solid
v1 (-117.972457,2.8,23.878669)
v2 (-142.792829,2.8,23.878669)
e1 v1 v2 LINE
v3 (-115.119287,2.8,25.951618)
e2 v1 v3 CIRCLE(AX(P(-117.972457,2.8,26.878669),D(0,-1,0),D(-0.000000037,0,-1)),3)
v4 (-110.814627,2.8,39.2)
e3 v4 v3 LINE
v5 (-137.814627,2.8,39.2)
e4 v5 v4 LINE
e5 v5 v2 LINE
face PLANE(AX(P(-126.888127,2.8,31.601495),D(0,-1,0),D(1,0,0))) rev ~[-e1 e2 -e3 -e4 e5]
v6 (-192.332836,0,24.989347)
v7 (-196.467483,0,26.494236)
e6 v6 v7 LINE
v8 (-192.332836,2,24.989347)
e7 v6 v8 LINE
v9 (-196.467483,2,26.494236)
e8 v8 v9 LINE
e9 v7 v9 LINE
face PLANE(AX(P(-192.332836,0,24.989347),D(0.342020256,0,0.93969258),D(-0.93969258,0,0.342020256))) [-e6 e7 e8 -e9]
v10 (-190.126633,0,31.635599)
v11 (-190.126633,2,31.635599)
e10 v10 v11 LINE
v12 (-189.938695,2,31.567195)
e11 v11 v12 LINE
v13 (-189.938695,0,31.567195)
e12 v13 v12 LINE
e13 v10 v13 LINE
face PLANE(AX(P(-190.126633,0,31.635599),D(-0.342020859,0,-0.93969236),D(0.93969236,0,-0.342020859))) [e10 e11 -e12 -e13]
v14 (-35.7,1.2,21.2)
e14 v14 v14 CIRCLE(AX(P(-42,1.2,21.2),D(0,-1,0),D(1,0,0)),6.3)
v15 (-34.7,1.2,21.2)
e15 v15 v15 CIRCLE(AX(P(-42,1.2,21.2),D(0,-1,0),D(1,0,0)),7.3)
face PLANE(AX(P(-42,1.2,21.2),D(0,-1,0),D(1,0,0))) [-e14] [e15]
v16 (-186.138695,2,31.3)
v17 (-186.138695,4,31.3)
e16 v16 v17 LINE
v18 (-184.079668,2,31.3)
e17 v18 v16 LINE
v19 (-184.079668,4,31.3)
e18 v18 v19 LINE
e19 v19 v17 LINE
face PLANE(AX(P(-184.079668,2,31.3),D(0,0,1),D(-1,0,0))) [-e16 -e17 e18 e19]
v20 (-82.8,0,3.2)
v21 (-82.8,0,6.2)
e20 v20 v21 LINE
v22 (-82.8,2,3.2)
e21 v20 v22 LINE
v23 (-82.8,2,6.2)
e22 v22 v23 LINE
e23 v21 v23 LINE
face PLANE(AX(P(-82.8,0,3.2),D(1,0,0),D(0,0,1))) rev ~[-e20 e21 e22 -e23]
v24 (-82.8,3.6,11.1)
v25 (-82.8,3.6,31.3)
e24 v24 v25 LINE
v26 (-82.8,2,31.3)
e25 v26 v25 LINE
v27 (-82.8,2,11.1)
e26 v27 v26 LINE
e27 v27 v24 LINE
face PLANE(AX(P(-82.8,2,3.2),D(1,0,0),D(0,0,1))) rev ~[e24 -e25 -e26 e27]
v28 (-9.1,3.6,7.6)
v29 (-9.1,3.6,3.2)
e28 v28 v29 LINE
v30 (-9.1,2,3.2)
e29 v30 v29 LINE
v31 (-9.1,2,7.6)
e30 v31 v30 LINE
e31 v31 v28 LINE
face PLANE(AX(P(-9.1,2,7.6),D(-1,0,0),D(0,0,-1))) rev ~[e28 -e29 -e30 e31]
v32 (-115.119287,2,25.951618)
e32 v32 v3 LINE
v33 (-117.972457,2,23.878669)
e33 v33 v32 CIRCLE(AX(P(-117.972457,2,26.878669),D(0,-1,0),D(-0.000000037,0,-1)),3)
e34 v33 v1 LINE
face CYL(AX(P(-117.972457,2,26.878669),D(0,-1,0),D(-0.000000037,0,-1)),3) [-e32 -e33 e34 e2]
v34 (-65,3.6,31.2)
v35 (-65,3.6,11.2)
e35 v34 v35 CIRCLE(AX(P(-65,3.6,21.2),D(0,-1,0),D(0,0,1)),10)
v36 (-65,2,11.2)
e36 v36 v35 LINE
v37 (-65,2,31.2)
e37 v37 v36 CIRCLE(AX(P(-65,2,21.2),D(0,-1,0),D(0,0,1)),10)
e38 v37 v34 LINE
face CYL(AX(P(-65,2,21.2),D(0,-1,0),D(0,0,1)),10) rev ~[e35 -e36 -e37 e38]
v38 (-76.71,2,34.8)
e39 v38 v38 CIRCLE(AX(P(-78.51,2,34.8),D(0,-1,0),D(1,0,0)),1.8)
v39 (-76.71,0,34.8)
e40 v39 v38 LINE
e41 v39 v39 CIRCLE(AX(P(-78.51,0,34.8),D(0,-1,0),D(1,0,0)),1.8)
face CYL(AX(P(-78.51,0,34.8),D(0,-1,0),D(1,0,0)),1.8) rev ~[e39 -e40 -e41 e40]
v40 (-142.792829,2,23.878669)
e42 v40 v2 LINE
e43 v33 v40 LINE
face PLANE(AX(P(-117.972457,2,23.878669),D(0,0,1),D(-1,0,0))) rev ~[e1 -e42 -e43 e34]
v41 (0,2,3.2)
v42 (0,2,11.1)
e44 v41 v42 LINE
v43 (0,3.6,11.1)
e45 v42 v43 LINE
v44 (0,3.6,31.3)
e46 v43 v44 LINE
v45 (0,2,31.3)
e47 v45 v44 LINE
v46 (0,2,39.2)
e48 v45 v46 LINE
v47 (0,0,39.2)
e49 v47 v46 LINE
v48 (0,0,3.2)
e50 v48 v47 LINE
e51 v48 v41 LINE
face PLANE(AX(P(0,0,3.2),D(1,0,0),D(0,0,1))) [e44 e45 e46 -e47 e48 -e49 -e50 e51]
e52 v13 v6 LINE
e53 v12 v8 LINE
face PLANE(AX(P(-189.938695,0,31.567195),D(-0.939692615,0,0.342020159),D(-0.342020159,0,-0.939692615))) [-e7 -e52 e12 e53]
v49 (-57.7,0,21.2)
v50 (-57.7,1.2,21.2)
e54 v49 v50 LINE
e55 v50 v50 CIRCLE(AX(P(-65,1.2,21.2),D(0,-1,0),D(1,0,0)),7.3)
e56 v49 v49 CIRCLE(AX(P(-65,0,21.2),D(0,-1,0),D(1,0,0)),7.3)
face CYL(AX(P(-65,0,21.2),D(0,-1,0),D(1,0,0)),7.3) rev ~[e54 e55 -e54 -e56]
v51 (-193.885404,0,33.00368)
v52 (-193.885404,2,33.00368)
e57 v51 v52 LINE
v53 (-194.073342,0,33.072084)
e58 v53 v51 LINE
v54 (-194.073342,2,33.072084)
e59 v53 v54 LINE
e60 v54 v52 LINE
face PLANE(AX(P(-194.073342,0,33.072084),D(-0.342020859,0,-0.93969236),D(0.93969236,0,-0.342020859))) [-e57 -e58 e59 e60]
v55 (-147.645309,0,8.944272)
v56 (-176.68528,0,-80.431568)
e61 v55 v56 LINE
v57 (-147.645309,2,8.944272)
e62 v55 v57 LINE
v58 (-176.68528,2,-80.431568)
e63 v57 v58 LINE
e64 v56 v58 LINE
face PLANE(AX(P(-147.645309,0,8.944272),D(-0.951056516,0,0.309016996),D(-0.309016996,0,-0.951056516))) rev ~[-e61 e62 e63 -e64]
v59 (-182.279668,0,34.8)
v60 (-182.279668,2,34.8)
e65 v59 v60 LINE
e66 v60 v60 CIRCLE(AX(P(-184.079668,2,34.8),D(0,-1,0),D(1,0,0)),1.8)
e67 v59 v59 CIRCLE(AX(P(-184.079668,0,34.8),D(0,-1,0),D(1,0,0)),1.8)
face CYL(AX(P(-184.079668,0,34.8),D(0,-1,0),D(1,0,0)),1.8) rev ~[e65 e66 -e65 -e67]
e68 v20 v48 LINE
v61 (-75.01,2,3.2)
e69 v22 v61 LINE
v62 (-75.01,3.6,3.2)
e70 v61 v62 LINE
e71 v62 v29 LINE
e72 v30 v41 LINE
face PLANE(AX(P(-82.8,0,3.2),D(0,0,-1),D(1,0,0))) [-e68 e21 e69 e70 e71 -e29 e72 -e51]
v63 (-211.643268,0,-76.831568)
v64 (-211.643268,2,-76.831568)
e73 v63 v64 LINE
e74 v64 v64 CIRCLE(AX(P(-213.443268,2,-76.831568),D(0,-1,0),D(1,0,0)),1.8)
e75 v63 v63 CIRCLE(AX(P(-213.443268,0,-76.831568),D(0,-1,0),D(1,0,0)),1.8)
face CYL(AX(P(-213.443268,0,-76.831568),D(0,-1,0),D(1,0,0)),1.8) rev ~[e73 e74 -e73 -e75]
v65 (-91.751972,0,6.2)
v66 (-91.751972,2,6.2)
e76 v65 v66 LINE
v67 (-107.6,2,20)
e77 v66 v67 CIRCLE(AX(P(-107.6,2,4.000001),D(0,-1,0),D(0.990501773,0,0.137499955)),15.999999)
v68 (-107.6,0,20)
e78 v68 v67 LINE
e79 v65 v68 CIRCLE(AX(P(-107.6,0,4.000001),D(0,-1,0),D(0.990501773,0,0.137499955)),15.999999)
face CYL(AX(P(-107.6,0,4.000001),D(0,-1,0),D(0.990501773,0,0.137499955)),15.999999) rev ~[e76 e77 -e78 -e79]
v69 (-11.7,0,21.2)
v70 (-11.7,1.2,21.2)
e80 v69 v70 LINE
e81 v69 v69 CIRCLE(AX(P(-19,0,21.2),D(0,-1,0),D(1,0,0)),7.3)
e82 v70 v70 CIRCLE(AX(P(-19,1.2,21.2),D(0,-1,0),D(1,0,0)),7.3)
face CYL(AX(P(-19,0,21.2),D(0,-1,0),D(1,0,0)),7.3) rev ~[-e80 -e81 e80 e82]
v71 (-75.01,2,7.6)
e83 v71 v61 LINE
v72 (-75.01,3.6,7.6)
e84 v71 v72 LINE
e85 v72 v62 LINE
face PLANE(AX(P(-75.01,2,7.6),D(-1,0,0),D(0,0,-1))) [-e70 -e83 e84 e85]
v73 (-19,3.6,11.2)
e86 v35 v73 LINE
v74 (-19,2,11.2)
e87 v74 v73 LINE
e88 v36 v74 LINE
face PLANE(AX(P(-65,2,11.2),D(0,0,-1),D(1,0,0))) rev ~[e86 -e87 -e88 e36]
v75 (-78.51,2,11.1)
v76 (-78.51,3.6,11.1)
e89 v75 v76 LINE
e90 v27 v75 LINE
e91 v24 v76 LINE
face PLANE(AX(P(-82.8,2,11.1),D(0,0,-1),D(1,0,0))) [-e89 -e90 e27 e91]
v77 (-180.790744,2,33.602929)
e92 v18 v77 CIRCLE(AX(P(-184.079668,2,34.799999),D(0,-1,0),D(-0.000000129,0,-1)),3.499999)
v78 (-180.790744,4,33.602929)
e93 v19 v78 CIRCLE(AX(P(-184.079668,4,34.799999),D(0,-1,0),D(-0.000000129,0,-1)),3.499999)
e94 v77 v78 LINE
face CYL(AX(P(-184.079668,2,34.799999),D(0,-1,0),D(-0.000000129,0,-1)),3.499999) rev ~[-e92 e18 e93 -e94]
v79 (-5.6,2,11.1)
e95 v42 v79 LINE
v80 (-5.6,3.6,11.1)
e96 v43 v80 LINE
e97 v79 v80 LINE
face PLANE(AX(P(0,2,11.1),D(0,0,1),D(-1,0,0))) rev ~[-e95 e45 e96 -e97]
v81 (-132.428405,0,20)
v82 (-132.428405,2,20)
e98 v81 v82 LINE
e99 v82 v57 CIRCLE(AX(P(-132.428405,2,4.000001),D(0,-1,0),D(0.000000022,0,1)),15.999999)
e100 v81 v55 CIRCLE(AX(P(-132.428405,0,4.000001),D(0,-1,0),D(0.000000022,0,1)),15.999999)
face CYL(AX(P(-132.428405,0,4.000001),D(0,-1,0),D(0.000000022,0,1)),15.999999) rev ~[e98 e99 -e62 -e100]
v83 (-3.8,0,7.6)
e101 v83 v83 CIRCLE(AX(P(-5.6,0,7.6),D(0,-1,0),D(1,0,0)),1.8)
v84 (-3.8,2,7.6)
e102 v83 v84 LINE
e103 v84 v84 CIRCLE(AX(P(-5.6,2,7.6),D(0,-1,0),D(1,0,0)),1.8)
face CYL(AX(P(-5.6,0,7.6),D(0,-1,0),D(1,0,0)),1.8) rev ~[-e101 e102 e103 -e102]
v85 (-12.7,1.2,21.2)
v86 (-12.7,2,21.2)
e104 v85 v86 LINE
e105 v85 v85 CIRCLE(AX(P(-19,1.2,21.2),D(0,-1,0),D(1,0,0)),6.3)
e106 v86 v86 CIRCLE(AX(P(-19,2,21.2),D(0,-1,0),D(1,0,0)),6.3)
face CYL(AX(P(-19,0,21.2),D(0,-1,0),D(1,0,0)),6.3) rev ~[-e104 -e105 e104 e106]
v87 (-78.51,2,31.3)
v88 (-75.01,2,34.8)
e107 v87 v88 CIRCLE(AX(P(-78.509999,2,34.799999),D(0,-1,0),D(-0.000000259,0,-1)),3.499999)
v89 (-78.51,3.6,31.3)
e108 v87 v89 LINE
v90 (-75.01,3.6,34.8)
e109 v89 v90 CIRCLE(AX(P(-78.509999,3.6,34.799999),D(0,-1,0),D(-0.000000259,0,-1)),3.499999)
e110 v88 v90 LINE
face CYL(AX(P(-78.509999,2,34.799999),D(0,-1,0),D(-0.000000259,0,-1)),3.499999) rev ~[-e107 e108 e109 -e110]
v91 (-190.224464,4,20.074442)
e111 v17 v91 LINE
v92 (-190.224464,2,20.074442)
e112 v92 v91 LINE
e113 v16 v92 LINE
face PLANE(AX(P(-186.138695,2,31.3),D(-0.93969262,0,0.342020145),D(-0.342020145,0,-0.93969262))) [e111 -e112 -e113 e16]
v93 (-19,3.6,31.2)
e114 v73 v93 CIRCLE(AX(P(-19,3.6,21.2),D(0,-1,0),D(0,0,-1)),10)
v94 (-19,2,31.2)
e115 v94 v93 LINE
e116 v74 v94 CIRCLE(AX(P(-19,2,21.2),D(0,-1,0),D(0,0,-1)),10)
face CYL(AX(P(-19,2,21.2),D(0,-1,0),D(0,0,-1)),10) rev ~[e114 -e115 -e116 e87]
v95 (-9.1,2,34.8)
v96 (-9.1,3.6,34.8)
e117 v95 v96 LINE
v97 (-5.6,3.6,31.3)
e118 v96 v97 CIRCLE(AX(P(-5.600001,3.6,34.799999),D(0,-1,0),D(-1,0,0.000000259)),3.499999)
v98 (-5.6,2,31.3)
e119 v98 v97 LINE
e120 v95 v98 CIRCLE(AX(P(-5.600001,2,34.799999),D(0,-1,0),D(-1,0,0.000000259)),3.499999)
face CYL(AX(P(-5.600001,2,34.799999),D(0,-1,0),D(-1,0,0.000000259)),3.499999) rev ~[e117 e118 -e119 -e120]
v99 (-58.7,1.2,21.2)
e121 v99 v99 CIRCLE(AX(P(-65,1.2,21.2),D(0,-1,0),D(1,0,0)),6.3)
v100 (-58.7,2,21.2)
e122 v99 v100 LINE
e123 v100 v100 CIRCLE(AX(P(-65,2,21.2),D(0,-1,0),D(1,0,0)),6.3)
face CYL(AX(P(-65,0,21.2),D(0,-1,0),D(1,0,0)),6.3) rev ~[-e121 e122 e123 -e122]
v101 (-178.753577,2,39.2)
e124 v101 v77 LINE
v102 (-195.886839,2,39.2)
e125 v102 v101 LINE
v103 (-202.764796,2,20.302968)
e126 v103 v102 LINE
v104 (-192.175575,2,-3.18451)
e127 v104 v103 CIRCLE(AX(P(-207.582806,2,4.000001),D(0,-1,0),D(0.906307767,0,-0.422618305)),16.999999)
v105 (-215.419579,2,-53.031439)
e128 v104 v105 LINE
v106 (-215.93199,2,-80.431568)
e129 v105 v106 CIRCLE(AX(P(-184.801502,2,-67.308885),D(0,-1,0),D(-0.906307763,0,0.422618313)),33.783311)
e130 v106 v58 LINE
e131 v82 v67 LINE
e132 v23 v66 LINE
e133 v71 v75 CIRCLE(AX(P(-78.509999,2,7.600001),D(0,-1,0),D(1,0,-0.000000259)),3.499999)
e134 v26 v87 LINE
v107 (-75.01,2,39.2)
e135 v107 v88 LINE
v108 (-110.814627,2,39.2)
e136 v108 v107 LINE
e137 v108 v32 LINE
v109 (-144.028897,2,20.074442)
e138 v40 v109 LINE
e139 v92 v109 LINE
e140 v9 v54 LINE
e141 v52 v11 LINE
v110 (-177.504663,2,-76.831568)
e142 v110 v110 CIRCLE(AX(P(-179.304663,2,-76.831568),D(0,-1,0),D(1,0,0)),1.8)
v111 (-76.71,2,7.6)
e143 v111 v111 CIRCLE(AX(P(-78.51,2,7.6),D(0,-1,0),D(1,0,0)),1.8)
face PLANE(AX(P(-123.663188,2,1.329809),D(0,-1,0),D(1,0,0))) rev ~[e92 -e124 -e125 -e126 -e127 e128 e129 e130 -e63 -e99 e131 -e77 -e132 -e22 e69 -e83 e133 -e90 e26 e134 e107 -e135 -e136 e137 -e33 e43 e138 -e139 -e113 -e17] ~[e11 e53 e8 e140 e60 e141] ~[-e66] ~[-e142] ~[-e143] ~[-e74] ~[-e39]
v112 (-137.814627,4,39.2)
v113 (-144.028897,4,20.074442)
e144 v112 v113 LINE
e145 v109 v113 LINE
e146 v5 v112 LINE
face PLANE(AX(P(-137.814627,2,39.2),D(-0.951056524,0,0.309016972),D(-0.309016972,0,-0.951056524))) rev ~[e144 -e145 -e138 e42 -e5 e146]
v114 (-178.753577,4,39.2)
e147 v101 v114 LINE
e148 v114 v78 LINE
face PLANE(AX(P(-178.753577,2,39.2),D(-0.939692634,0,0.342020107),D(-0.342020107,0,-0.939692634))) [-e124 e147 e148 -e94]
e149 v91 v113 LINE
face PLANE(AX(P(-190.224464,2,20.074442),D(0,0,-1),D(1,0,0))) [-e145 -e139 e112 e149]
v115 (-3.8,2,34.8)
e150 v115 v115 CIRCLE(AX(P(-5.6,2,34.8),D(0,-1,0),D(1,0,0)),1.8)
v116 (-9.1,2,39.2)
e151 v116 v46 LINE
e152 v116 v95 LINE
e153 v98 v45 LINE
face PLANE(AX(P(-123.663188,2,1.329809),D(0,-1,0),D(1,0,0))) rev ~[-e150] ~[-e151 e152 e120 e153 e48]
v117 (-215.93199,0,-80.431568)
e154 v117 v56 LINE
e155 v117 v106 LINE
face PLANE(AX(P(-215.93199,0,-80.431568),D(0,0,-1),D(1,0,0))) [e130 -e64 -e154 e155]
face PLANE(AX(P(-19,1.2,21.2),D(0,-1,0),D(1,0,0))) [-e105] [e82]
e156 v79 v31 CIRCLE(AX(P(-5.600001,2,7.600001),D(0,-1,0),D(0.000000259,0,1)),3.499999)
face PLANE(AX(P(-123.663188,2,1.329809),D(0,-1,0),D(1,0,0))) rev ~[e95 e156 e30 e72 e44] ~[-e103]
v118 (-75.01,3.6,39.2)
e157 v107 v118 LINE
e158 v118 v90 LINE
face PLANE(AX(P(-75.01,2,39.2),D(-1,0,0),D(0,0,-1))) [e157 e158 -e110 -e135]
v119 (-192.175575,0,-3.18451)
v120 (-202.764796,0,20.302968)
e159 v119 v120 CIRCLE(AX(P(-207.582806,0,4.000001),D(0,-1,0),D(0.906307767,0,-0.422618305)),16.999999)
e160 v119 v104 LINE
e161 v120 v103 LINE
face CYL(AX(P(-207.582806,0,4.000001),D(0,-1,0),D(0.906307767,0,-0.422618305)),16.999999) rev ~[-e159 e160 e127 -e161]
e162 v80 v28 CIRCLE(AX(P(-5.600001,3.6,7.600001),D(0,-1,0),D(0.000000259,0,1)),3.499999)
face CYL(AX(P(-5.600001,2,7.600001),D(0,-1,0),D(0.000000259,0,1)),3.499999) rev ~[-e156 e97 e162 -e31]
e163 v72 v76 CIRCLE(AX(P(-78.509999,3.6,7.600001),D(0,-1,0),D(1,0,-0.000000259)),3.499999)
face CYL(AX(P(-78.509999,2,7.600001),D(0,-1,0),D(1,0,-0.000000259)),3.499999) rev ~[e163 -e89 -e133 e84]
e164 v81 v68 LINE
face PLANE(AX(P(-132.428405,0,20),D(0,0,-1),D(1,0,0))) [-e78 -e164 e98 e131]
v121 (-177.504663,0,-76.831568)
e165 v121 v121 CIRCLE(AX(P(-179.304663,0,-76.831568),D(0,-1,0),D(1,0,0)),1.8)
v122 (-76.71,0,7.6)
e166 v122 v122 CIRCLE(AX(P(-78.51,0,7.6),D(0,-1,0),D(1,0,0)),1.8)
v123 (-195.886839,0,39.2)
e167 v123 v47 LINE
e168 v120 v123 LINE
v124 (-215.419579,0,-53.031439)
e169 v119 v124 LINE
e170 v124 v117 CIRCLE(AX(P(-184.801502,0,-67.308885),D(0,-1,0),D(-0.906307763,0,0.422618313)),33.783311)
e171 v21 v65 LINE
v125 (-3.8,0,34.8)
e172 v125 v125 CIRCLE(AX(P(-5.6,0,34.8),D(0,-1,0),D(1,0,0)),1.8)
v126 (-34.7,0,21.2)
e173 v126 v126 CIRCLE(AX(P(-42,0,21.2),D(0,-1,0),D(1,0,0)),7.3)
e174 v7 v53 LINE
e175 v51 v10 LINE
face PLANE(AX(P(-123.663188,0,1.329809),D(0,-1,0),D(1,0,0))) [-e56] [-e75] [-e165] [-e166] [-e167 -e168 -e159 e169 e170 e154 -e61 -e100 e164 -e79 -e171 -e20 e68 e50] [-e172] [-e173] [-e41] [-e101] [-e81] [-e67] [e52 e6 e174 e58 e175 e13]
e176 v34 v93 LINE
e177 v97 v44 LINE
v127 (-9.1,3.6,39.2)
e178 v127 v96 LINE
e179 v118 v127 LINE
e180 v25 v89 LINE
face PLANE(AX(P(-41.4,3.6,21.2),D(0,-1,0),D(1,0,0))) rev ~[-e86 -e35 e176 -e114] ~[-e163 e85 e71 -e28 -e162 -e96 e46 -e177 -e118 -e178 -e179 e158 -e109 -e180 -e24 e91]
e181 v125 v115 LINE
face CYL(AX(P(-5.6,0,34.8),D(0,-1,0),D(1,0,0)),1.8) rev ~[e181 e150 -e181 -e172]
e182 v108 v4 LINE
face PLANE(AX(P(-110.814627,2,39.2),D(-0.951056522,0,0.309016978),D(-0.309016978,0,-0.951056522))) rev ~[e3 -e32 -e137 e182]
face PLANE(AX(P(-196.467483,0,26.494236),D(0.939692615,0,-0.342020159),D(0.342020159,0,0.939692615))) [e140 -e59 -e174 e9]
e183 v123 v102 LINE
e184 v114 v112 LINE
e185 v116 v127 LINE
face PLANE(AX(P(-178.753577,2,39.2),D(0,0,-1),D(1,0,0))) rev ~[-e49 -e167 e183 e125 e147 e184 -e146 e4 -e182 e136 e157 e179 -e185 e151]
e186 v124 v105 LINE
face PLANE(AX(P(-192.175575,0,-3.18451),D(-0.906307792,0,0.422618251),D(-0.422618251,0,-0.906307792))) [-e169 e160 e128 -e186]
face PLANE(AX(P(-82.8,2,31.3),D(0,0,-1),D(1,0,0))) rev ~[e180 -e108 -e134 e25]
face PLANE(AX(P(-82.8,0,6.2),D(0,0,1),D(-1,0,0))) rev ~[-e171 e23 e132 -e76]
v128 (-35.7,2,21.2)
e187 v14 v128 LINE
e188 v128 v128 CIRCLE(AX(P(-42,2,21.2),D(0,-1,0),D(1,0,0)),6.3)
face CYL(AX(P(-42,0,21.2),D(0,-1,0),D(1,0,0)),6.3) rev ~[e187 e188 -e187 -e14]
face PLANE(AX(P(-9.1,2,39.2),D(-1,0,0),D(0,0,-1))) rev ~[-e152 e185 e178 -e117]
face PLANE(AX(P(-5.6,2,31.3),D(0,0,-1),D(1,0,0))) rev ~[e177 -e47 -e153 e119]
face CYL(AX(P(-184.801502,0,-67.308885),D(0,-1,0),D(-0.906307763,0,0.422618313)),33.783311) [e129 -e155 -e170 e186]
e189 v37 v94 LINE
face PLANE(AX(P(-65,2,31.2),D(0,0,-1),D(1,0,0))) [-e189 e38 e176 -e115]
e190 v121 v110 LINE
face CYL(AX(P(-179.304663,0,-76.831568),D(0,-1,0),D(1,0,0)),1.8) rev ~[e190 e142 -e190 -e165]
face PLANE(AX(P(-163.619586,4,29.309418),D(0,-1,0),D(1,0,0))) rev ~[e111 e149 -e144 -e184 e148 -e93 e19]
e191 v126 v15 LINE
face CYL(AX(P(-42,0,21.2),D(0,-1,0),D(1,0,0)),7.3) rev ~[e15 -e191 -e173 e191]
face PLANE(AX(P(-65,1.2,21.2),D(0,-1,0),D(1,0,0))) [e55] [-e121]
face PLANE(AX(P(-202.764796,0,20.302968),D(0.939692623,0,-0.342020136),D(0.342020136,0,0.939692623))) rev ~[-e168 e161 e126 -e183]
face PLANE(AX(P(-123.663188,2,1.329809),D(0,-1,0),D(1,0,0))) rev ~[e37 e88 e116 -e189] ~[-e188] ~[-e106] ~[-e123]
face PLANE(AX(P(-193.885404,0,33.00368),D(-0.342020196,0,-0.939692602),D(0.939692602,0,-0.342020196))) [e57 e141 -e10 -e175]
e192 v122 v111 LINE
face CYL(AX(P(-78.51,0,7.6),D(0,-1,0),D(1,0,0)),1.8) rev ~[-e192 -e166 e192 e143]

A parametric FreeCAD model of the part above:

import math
import FreeCAD as App
import Part
import Sketcher
from FreeCAD import Vector
Q = App.Units.Quantity

doc = App.newDocument("Part")
body = doc.addObject("PartDesign::Body", "Body")

sketch1 = body.newObject("Sketcher::SketchObject", "Sketch")
sketch1.AttachmentSupport = (doc.getObject("XZ_Plane"), [""])
sketch1.MapMode = "FlatFace"
sketch1.addGeometry(Part.LineSegment(Vector(-137.8, 39.2, 0), Vector(-142.8, 23.9, 0)), False)
sketch1.addGeometry(Part.LineSegment(Vector(-142.8, 23.9, 0), Vector(-118, 23.9, 0)), False)
sketch1.addGeometry(Part.ArcOfCircle(Part.Circle(Vector(-118, 26.9, 0), Vector(0, 0, 1), 3), math.radians(-90), math.radians(-18)), False)
sketch1.addGeometry(Part.LineSegment(Vector(-115.1, 26, 0), Vector(-110.8, 39.2, 0)), False)
sketch1.addGeometry(Part.LineSegment(Vector(-110.8, 39.2, 0), Vector(-137.8, 39.2, 0)), False)
sketch1.addConstraint(Sketcher.Constraint("Coincident", 0, 2, 1, 1))
sketch1.addConstraint(Sketcher.Constraint("Tangent", 1, 2, 2, 1))
sketch1.addConstraint(Sketcher.Constraint("Tangent", 2, 2, 3, 1))
sketch1.addConstraint(Sketcher.Constraint("Coincident", 3, 2, 4, 1))
sketch1.addConstraint(Sketcher.Constraint("Coincident", 4, 2, 0, 1))
sketch1.addConstraint(Sketcher.Constraint("Horizontal", 1))
sketch1.addConstraint(Sketcher.Constraint("Horizontal", 4))
sketch1.addConstraint(Sketcher.Constraint("Parallel", 0, 3))
sketch1.addConstraint(Sketcher.Constraint("Radius", 2, Q("3 mm")))
sketch1.addConstraint(Sketcher.Constraint("DistanceX", 4, 2, 4, 1, Q("27 mm")))
sketch1.addConstraint(Sketcher.Constraint("Angle", 0, Q("-107.999999 deg")))
sketch1.addConstraint(Sketcher.Constraint("DistanceY", -1, 1, 3, 2, Q("39.2 mm")))
sketch1.addConstraint(Sketcher.Constraint("Distance", 0, Q("16.109801 mm")))
sketch1.addConstraint(Sketcher.Constraint("DistanceX", 0, 2, -1, 1, Q("142.792829 mm")))
pad1 = body.newObject("PartDesign::Pad", "Pad")
pad1.Profile = sketch1
pad1.Length = 0.8
pad1.Reversed = True
body2 = doc.addObject("PartDesign::Body", "Body001")
doc.recompute()

body.Placement = App.Placement(Vector(0, 2, 0), App.Rotation(Vector(0, 0, 1), 0))
boolean = body2.newObject("PartDesign::Boolean", "Boolean")
boolean.Type = "Fuse"
boolean.addObjects([body])
body3 = doc.addObject("PartDesign::Body", "Body002")

sketch2 = body3.newObject("Sketcher::SketchObject", "Sketch001")
sketch2.AttachmentSupport = (doc.getObject("XZ_Plane002"), [""])
sketch2.MapMode = "FlatFace"
sketch2.addGeometry(Part.LineSegment(Vector(-144, 20.1, 0), Vector(-137.8, 39.2, 0)), False)
sketch2.addGeometry(Part.LineSegment(Vector(-137.8, 39.2, 0), Vector(-178.8, 39.2, 0)), False)
sketch2.addGeometry(Part.LineSegment(Vector(-178.8, 39.2, 0), Vector(-180.8, 33.6, 0)), False)
sketch2.addGeometry(Part.ArcOfCircle(Part.Circle(Vector(-184.1, 34.8, 0), Vector(0, 0, 1), 3.5), math.radians(-90), math.radians(-20)), False)
sketch2.addGeometry(Part.LineSegment(Vector(-184.1, 31.3, 0), Vector(-186.1, 31.3, 0)), False)
sketch2.addGeometry(Part.LineSegment(Vector(-186.1, 31.3, 0), Vector(-190.2, 20.1, 0)), False)
sketch2.addGeometry(Part.LineSegment(Vector(-190.2, 20.1, 0), Vector(-144, 20.1, 0)), False)
sketch2.addConstraint(Sketcher.Constraint("Coincident", 0, 2, 1, 1))
sketch2.addConstraint(Sketcher.Constraint("Coincident", 1, 2, 2, 1))
sketch2.addConstraint(Sketcher.Constraint("Tangent", 2, 2, 3, 2))
sketch2.addConstraint(Sketcher.Constraint("Tangent", 3, 1, 4, 1))
sketch2.addConstraint(Sketcher.Constraint("Coincident", 4, 2, 5, 1))
sketch2.addConstraint(Sketcher.Constraint("Coincident", 5, 2, 6, 1))
sketch2.addConstraint(Sketcher.Constraint("Coincident", 6, 2, 0, 1))
sketch2.addConstraint(Sketcher.Constraint("Horizontal", 1))
sketch2.addConstraint(Sketcher.Constraint("Horizontal", 4))
sketch2.addConstraint(Sketcher.Constraint("Horizontal", 6))
sketch2.addConstraint(Sketcher.Constraint("Parallel", 2, 5))
sketch2.addConstraint(Sketcher.Constraint("Radius", 3, Q("3.499999 mm")))
sketch2.addConstraint(Sketcher.Constraint("Angle", 0, Q("72.000001 deg")))
sketch2.addConstraint(Sketcher.Constraint("Angle", 2, Q("-109.999998 deg")))
sketch2.addConstraint(Sketcher.Constraint("DistanceY", -1, 1, 3, 3, Q("34.799999 mm")))
sketch2.addConstraint(Sketcher.Constraint("DistanceY", -1, 1, 0, 2, Q("39.2 mm")))
sketch2.addConstraint(Sketcher.Constraint("Distance", 0, Q("20.109802 mm")))
sketch2.addConstraint(Sketcher.Constraint("DistanceX", 1, 2, 1, 1, Q("40.93895 mm")))
sketch2.addConstraint(Sketcher.Constraint("DistanceX", 4, 2, 4, 1, Q("2.059027 mm")))
sketch2.addConstraint(Sketcher.Constraint("DistanceX", 3, 1, -1, 1, Q("184.079668 mm")))
pad2 = body3.newObject("PartDesign::Pad", "Pad001")
pad2.Profile = sketch2
pad2.Length = 2
pad2.Reversed = True
body4 = doc.addObject("PartDesign::Body", "Body003")
doc.recompute()

body3.Placement = App.Placement(Vector(0, 2, 0), App.Rotation(Vector(0, 0, 1), 0))
boolean2 = body4.newObject("PartDesign::Boolean", "Boolean001")
boolean2.Type = "Fuse"
boolean2.addObjects([body3])
body5 = doc.addObject("PartDesign::Body", "Body004")
body5.AllowCompound = True

sketch3 = body5.newObject("Sketcher::SketchObject", "Sketch002")
sketch3.AttachmentSupport = (doc.getObject("XZ_Plane004"), [""])
sketch3.MapMode = "FlatFace"
sketch3.addGeometry(Part.ArcOfCircle(Part.Circle(Vector(-78.5, 34.8, 0), Vector(0, 0, 1), 3.5), math.radians(-90), math.radians(0)), False)
sketch3.addGeometry(Part.LineSegment(Vector(-75, 34.8, 0), Vector(-75, 39.2, 0)), False)
sketch3.addGeometry(Part.LineSegment(Vector(-75, 39.2, 0), Vector(-82.8, 39.2, 0)), False)
sketch3.addGeometry(Part.LineSegment(Vector(-82.8, 39.2, 0), Vector(-82.8, 31.3, 0)), False)
sketch3.addGeometry(Part.LineSegment(Vector(-82.8, 31.3, 0), Vector(-78.5, 31.3, 0)), False)
sketch3.addGeometry(Part.Circle(Vector(-78.5, 34.8, 0), Vector(0, 0, 1), 1.8), False)
sketch3.addGeometry(Part.ArcOfCircle(Part.Circle(Vector(-5.6, 34.8, 0), Vector(0, 0, 1), 3.5), math.radians(180), math.radians(270)), False)
sketch3.addGeometry(Part.LineSegment(Vector(-5.6, 31.3, 0), Vector(0, 31.3, 0)), False)
sketch3.addGeometry(Part.LineSegment(Vector(0, 31.3, 0), Vector(0, 39.2, 0)), False)
sketch3.addGeometry(Part.LineSegment(Vector(0, 39.2, 0), Vector(-9.1, 39.2, 0)), False)
sketch3.addGeometry(Part.LineSegment(Vector(-9.1, 39.2, 0), Vector(-9.1, 34.8, 0)), False)
sketch3.addGeometry(Part.Circle(Vector(-5.6, 34.8, 0), Vector(0, 0, 1), 1.8), False)
sketch3.addGeometry(Part.ArcOfCircle(Part.Circle(Vector(-78.5, 7.6, 0), Vector(0, 0, 1), 3.5), math.radians(0), math.radians(90)), False)
sketch3.addGeometry(Part.LineSegment(Vector(-78.5, 11.1, 0), Vector(-82.8, 11.1, 0)), False)
sketch3.addGeometry(Part.LineSegment(Vector(-82.8, 11.1, 0), Vector(-82.8, 3.2, 0)), False)
sketch3.addGeometry(Part.LineSegment(Vector(-82.8, 3.2, 0), Vector(-75, 3.2, 0)), False)
sketch3.addGeometry(Part.LineSegment(Vector(-75, 3.2, 0), Vector(-75, 7.6, 0)), False)
sketch3.addGeometry(Part.Circle(Vector(-78.5, 7.6, 0), Vector(0, 0, 1), 1.8), False)
sketch3.addGeometry(Part.ArcOfCircle(Part.Circle(Vector(-5.6, 7.6, 0), Vector(0, 0, 1), 3.5), math.radians(90), math.radians(180)), False)
sketch3.addGeometry(Part.LineSegment(Vector(-9.1, 7.6, 0), Vector(-9.1, 3.2, 0)), False)
sketch3.addGeometry(Part.LineSegment(Vector(-9.1, 3.2, 0), Vector(0, 3.2, 0)), False)
sketch3.addGeometry(Part.LineSegment(Vector(0, 3.2, 0), Vector(0, 11.1, 0)), False)
sketch3.addGeometry(Part.LineSegment(Vector(0, 11.1, 0), Vector(-5.6, 11.1, 0)), False)
sketch3.addGeometry(Part.Circle(Vector(-5.6, 7.6, 0), Vector(0, 0, 1), 1.8), False)
sketch3.addConstraint(Sketcher.Constraint("Tangent", 0, 2, 1, 1))
sketch3.addConstraint(Sketcher.Constraint("Coincident", 1, 2, 2, 1))
sketch3.addConstraint(Sketcher.Constraint("Coincident", 2, 2, 3, 1))
sketch3.addConstraint(Sketcher.Constraint("Coincident", 3, 2, 4, 1))
sketch3.addConstraint(Sketcher.Constraint("Tangent", 4, 2, 0, 1))
sketch3.addConstraint(Sketcher.Constraint("Tangent", 6, 2, 7, 1))
sketch3.addConstraint(Sketcher.Constraint("Coincident", 7, 2, 8, 1))
sketch3.addConstraint(Sketcher.Constraint("Coincident", 8, 2, 9, 1))
sketch3.addConstraint(Sketcher.Constraint("Coincident", 9, 2, 10, 1))
sketch3.addConstraint(Sketcher.Constraint("Tangent", 10, 2, 6, 1))
sketch3.addConstraint(Sketcher.Constraint("Tangent", 12, 2, 13, 1))
sketch3.addConstraint(Sketcher.Constraint("Coincident", 13, 2, 14, 1))
sketch3.addConstraint(Sketcher.Constraint("Coincident", 14, 2, 15, 1))
sketch3.addConstraint(Sketcher.Constraint("Coincident", 15, 2, 16, 1))
sketch3.addConstraint(Sketcher.Constraint("Tangent", 16, 2, 12, 1))
sketch3.addConstraint(Sketcher.Constraint("Tangent", 18, 2, 19, 1))
sketch3.addConstraint(Sketcher.Constraint("Coincident", 19, 2, 20, 1))
sketch3.addConstraint(Sketcher.Constraint("Coincident", 20, 2, 21, 1))
sketch3.addConstraint(Sketcher.Constraint("Coincident", 21, 2, 22, 1))
sketch3.addConstraint(Sketcher.Constraint("Tangent", 22, 2, 18, 1))
sketch3.addConstraint(Sketcher.Constraint("Vertical", 1))
sketch3.addConstraint(Sketcher.Constraint("Horizontal", 2))
sketch3.addConstraint(Sketcher.Constraint("Vertical", 3))
sketch3.addConstraint(Sketcher.Constraint("Horizontal", 4))
sketch3.addConstraint(Sketcher.Constraint("Horizontal", 7))
sketch3.addConstraint(Sketcher.Constraint("Vertical", 8))
sketch3.addConstraint(Sketcher.Constraint("Horizontal", 9))
sketch3.addConstraint(Sketcher.Constraint("Vertical", 10))
sketch3.addConstraint(Sketcher.Constraint("Horizontal", 13))
sketch3.addConstraint(Sketcher.Constraint("Vertical", 14))
sketch3.addConstraint(Sketcher.Constraint("Horizontal", 15))
sketch3.addConstraint(Sketcher.Constraint("Vertical", 16))
sketch3.addConstraint(Sketcher.Constraint("Vertical", 19))
sketch3.addConstraint(Sketcher.Constraint("Horizontal", 20))
sketch3.addConstraint(Sketcher.Constraint("Vertical", 21))
sketch3.addConstraint(Sketcher.Constraint("Horizontal", 22))
sketch3.addConstraint(Sketcher.Constraint("Coincident", 5, 3, 0, 3))
sketch3.addConstraint(Sketcher.Constraint("Coincident", 11, 3, 6, 3))
sketch3.addConstraint(Sketcher.Constraint("Coincident", 17, 3, 12, 3))
sketch3.addConstraint(Sketcher.Constraint("Coincident", 23, 3, 18, 3))
sketch3.addConstraint(Sketcher.Constraint("Equal", 0, 6))
sketch3.addConstraint(Sketcher.Constraint("Equal", 5, 11))
sketch3.addConstraint(Sketcher.Constraint("Equal", 6, 12))
sketch3.addConstraint(Sketcher.Constraint("Equal", 11, 17))
sketch3.addConstraint(Sketcher.Constraint("Equal", 12, 18))
sketch3.addConstraint(Sketcher.Constraint("Equal", 17, 23))
sketch3.addConstraint(Sketcher.Constraint("PointOnObject", 7, 2, -2))
sketch3.addConstraint(Sketcher.Constraint("PointOnObject", 20, 2, -2))
sketch3.addConstraint(Sketcher.Constraint("Horizontal", 5, 3, 6, 3))
sketch3.addConstraint(Sketcher.Constraint("Horizontal", 17, 3, 18, 3))
sketch3.addConstraint(Sketcher.Constraint("Horizontal", 2, 2, 8, 2))
sketch3.addConstraint(Sketcher.Constraint("Horizontal", 15, 2, 19, 2))
sketch3.addConstraint(Sketcher.Constraint("Vertical", 5, 3, 12, 3))
sketch3.addConstraint(Sketcher.Constraint("Vertical", 11, 3, 18, 3))
sketch3.addConstraint(Sketcher.Constraint("Vertical", 3, 2, 13, 2))
sketch3.addConstraint(Sketcher.Constraint("Equal", 8, 14))
sketch3.addConstraint(Sketcher.Constraint("Diameter", 5, Q("3.6 mm")))
sketch3.addConstraint(Sketcher.Constraint("Radius", 0, Q("3.499999 mm")))
sketch3.addConstraint(Sketcher.Constraint("DistanceX", 7, 1, 7, 2, Q("5.6 mm")))
sketch3.addConstraint(Sketcher.Constraint("DistanceY", 1, 1, 1, 2, Q("4.4 mm")))
sketch3.addConstraint(Sketcher.Constraint("DistanceX", 2, 2, 2, 1, Q("7.79 mm")))
sketch3.addConstraint(Sketcher.Constraint("DistanceY", -1, 1, 0, 3, Q("34.799999 mm")))
sketch3.addConstraint(Sketcher.Constraint("DistanceY", -1, 1, 12, 3, Q("7.600001 mm")))
sketch3.addConstraint(Sketcher.Constraint("DistanceX", 2, 2, -1, 1, Q("82.8 mm")))
pad3 = body5.newObject("PartDesign::Pad", "Pad002")
pad3.Profile = sketch3
pad3.Length = 1.6
pad3.Reversed = True
body6 = doc.addObject("PartDesign::Body", "Body005")
body6.AllowCompound = True
doc.recompute()

body5.Placement = App.Placement(Vector(0, 2, 0), App.Rotation(Vector(0, 0, 1), 0))
boolean3 = body6.newObject("PartDesign::Boolean", "Boolean002")
boolean3.Type = "Fuse"
boolean3.addObjects([body5])
body7 = doc.addObject("PartDesign::Body", "Body006")

sketch4 = body7.newObject("Sketcher::SketchObject", "Sketch003")
sketch4.AttachmentSupport = (doc.getObject("XZ_Plane006"), [""])
sketch4.MapMode = "FlatFace"
sketch4.addGeometry(Part.LineSegment(Vector(-82.8, 39.2, 0), Vector(-82.8, 3.2, 0)), False)
sketch4.addGeometry(Part.LineSegment(Vector(-82.8, 3.2, 0), Vector(0, 3.2, 0)), False)
sketch4.addGeometry(Part.LineSegment(Vector(0, 3.2, 0), Vector(0, 39.2, 0)), False)
sketch4.addGeometry(Part.LineSegment(Vector(0, 39.2, 0), Vector(-82.8, 39.2, 0)), False)
sketch4.addGeometry(Part.Circle(Vector(-78.5, 7.6, 0), Vector(0, 0, 1), 1.8), False)
sketch4.addGeometry(Part.Circle(Vector(-5.6, 7.6, 0), Vector(0, 0, 1), 1.8), False)
sketch4.addGeometry(Part.Circle(Vector(-78.5, 34.8, 0), Vector(0, 0, 1), 1.8), False)
sketch4.addGeometry(Part.ArcOfCircle(Part.Circle(Vector(-65, 21.2, 0), Vector(0, 0, 1), 10), math.radians(90), math.radians(270)), False)
sketch4.addGeometry(Part.LineSegment(Vector(-65, 31.2, 0), Vector(-19, 31.2, 0)), False)
sketch4.addGeometry(Part.ArcOfCircle(Part.Circle(Vector(-19, 21.2, 0), Vector(0, 0, 1), 10), math.radians(-90), math.radians(90)), False)
sketch4.addGeometry(Part.LineSegment(Vector(-19, 11.2, 0), Vector(-65, 11.2, 0)), False)
sketch4.addGeometry(Part.Circle(Vector(-5.6, 34.8, 0), Vector(0, 0, 1), 1.8), False)
sketch4.addConstraint(Sketcher.Constraint("Coincident", 0, 2, 1, 1))
sketch4.addConstraint(Sketcher.Constraint("Coincident", 1, 2, 2, 1))
sketch4.addConstraint(Sketcher.Constraint("Coincident", 2, 2, 3, 1))
sketch4.addConstraint(Sketcher.Constraint("Coincident", 3, 2, 0, 1))
sketch4.addConstraint(Sketcher.Constraint("Tangent", 7, 1, 8, 1))
sketch4.addConstraint(Sketcher.Constraint("Tangent", 8, 2, 9, 2))
sketch4.addConstraint(Sketcher.Constraint("Tangent", 9, 1, 10, 1))
sketch4.addConstraint(Sketcher.Constraint("Tangent", 10, 2, 7, 2))
sketch4.addConstraint(Sketcher.Constraint("Vertical", 0))
sketch4.addConstraint(Sketcher.Constraint("Horizontal", 1))
sketch4.addConstraint(Sketcher.Constraint("Vertical", 2))
sketch4.addConstraint(Sketcher.Constraint("Horizontal", 3))
sketch4.addConstraint(Sketcher.Constraint("Horizontal", 8))
sketch4.addConstraint(Sketcher.Constraint("Horizontal", 10))
sketch4.addConstraint(Sketcher.Constraint("Equal", 4, 5))
sketch4.addConstraint(Sketcher.Constraint("Equal", 5, 6))
sketch4.addConstraint(Sketcher.Constraint("Equal", 6, 11))
sketch4.addConstraint(Sketcher.Constraint("PointOnObject", 1, 2, -2))
sketch4.addConstraint(Sketcher.Constraint("Horizontal", 4, 3, 5, 3))
sketch4.addConstraint(Sketcher.Constraint("Horizontal", 6, 3, 11, 3))
sketch4.addConstraint(Sketcher.Constraint("Vertical", 4, 3, 6, 3))
sketch4.addConstraint(Sketcher.Constraint("Vertical", 5, 3, 11, 3))
sketch4.addConstraint(Sketcher.Constraint("Radius", 7, Q("10 mm")))
sketch4.addConstraint(Sketcher.Constraint("Diameter", 4, Q("3.6 mm")))
sketch4.addConstraint(Sketcher.Constraint("DistanceX", 8, 1, 8, 2, Q("46 mm")))
sketch4.addConstraint(Sketcher.Constraint("DistanceY", 0, 2, 0, 1, Q("36 mm")))
sketch4.addConstraint(Sketcher.Constraint("DistanceX", 1, 1, 1, 2, Q("82.8 mm")))
sketch4.addConstraint(Sketcher.Constraint("DistanceX", 7, 3, -1, 1, Q("65 mm")))
sketch4.addConstraint(Sketcher.Constraint("DistanceY", 0, 2, 7, 3, Q("18 mm")))
sketch4.addConstraint(Sketcher.Constraint("DistanceY", -1, 1, 4, 3, Q("7.6 mm")))
sketch4.addConstraint(Sketcher.Constraint("DistanceX", 5, 3, -1, 1, Q("5.6 mm")))
sketch4.addConstraint(Sketcher.Constraint("DistanceY", -1, 1, 6, 3, Q("34.8 mm")))
sketch4.addConstraint(Sketcher.Constraint("DistanceY", -1, 1, 7, 3, Q("21.2 mm")))
sketch4.addConstraint(Sketcher.Constraint("DistanceX", 4, 3, -1, 1, Q("78.51 mm")))
pad4 = body7.newObject("PartDesign::Pad", "Pad003")
pad4.Profile = sketch4
pad4.Length = 1.6
pad4.Reversed = True
body8 = doc.addObject("PartDesign::Body", "Body007")
doc.recompute()

body7.Placement = App.Placement(Vector(0, 2, 0), App.Rotation(Vector(0, 0, 1), 0))
boolean4 = body8.newObject("PartDesign::Boolean", "Boolean003")
boolean4.Type = "Fuse"
boolean4.addObjects([body7])
doc.recompute()

boolean5 = body8.newObject("PartDesign::Boolean", "Boolean004")
boolean5.Type = "Cut"
boolean5.addObjects([body6])
body9 = doc.addObject("PartDesign::Body", "Body008")
body9.AllowCompound = True

sketch5 = body9.newObject("Sketcher::SketchObject", "Sketch004")
sketch5.AttachmentSupport = (doc.getObject("XZ_Plane008"), [""])
sketch5.MapMode = "FlatFace"
sketch5.addGeometry(Part.Circle(Vector(-65, 21, 0), Vector(0, 0, 1), 7), False)
sketch5.addGeometry(Part.Circle(Vector(-42, 21, 0), Vector(0, 0, 1), 7), False)
sketch5.addGeometry(Part.Circle(Vector(-19, 21, 0), Vector(0, 0, 1), 7), False)
sketch5.addConstraint(Sketcher.Constraint("Equal", 0, 1))
sketch5.addConstraint(Sketcher.Constraint("Equal", 1, 2))
sketch5.addConstraint(Sketcher.Constraint("Horizontal", 0, 3, 1, 3))
sketch5.addConstraint(Sketcher.Constraint("Horizontal", 1, 3, 2, 3))
sketch5.addConstraint(Sketcher.Constraint("Diameter", 0, Q("14.6 mm")))
sketch5.addConstraint(Sketcher.Constraint("DistanceX", 0, 3, -1, 1, Q("65 mm")))
sketch5.addConstraint(Sketcher.Constraint("DistanceX", 1, 3, -1, 1, Q("42 mm")))
sketch5.addConstraint(Sketcher.Constraint("DistanceX", 2, 3, -1, 1, Q("19 mm")))
sketch5.addConstraint(Sketcher.Constraint("DistanceY", -1, 1, 0, 3, Q("21.2 mm")))
pad5 = body9.newObject("PartDesign::Pad", "Pad004")
pad5.Profile = sketch5
pad5.Length = 1.2
pad5.Reversed = True
body10 = doc.addObject("PartDesign::Body", "Body009")

sketch6 = body10.newObject("Sketcher::SketchObject", "Sketch005")
sketch6.AttachmentSupport = (doc.getObject("XZ_Plane009"), [""])
sketch6.MapMode = "FlatFace"
sketch6.addGeometry(Part.LineSegment(Vector(-82.8, 3.2, 0), Vector(0, 3.2, 0)), False)
sketch6.addGeometry(Part.LineSegment(Vector(0, 3.2, 0), Vector(0, 39.2, 0)), False)
sketch6.addGeometry(Part.LineSegment(Vector(0, 39.2, 0), Vector(-195.89, 39.2, 0)), False)
sketch6.addGeometry(Part.LineSegment(Vector(-195.89, 39.2, 0), Vector(-202.76, 20.3, 0)), False)
sketch6.addGeometry(Part.ArcOfCircle(Part.Circle(Vector(-207.58, 4, 0), Vector(0, 0, 1), 17), math.radians(-25), math.radians(74)), False)
sketch6.addGeometry(Part.LineSegment(Vector(-192.18, -3.18, 0), Vector(-215.42, -53.03, 0)), False)
sketch6.addGeometry(Part.ArcOfCircle(Part.Circle(Vector(-184.8, -67.31, 0), Vector(0, 0, 1), 33.78), math.radians(155), math.radians(203)), False)
sketch6.addGeometry(Part.LineSegment(Vector(-215.93, -80.43, 0), Vector(-176.69, -80.43, 0)), False)
sketch6.addGeometry(Part.LineSegment(Vector(-176.69, -80.43, 0), Vector(-147.65, 8.94, 0)), False)
sketch6.addGeometry(Part.ArcOfCircle(Part.Circle(Vector(-132.43, 4, 0), Vector(0, 0, 1), 16), math.radians(90), math.radians(162)), False)
sketch6.addGeometry(Part.LineSegment(Vector(-132.43, 20, 0), Vector(-107.6, 20, 0)), False)
sketch6.addGeometry(Part.ArcOfCircle(Part.Circle(Vector(-107.6, 4, 0), Vector(0, 0, 1), 16), math.radians(8), math.radians(90)), False)
sketch6.addGeometry(Part.LineSegment(Vector(-91.75, 6.2, 0), Vector(-82.8, 6.2, 0)), False)
sketch6.addGeometry(Part.LineSegment(Vector(-82.8, 6.2, 0), Vector(-82.8, 3.2, 0)), False)
sketch6.addGeometry(Part.Circle(Vector(-213.44, -76.83, 0), Vector(0, 0, 1), 1.8), False)
sketch6.addGeometry(Part.Circle(Vector(-179.3, -76.83, 0), Vector(0, 0, 1), 1.8), False)
sketch6.addGeometry(Part.LineSegment(Vector(-190.13, 31.64, 0), Vector(-189.94, 31.57, 0)), False)
sketch6.addGeometry(Part.LineSegment(Vector(-189.94, 31.57, 0), Vector(-192.33, 24.99, 0)), False)
sketch6.addGeometry(Part.LineSegment(Vector(-192.33, 24.99, 0), Vector(-196.47, 26.49, 0)), False)
sketch6.addGeometry(Part.LineSegment(Vector(-196.47, 26.49, 0), Vector(-194.07, 33.07, 0)), False)
sketch6.addGeometry(Part.LineSegment(Vector(-194.07, 33.07, 0), Vector(-193.89, 33, 0)), False)
sketch6.addGeometry(Part.LineSegment(Vector(-193.89, 33, 0), Vector(-190.13, 31.64, 0)), False)
sketch6.addGeometry(Part.Circle(Vector(-184.08, 34.8, 0), Vector(0, 0, 1), 1.8), False)
sketch6.addGeometry(Part.Circle(Vector(-78.51, 7.6, 0), Vector(0, 0, 1), 1.8), False)
sketch6.addGeometry(Part.Circle(Vector(-5.6, 7.6, 0), Vector(0, 0, 1), 1.8), False)
sketch6.addGeometry(Part.Circle(Vector(-65, 21.2, 0), Vector(0, 0, 1), 6.3), False)
sketch6.addGeometry(Part.Circle(Vector(-78.51, 34.8, 0), Vector(0, 0, 1), 1.8), False)
sketch6.addGeometry(Part.Circle(Vector(-42, 21.2, 0), Vector(0, 0, 1), 6.3), False)
sketch6.addGeometry(Part.Circle(Vector(-19, 21.2, 0), Vector(0, 0, 1), 6.3), False)
sketch6.addGeometry(Part.Circle(Vector(-5.6, 34.8, 0), Vector(0, 0, 1), 1.8), False)
sketch6.addConstraint(Sketcher.Constraint("Coincident", 0, 2, 1, 1))
sketch6.addConstraint(Sketcher.Constraint("Coincident", 1, 2, 2, 1))
sketch6.addConstraint(Sketcher.Constraint("Coincident", 2, 2, 3, 1))
sketch6.addConstraint(Sketcher.Constraint("Coincident", 3, 2, 4, 2))
sketch6.addConstraint(Sketcher.Constraint("Tangent", 4, 1, 5, 1))
sketch6.addConstraint(Sketcher.Constraint("Tangent", 5, 2, 6, 1))
sketch6.addConstraint(Sketcher.Constraint("Coincident", 6, 2, 7, 1))
sketch6.addConstraint(Sketcher.Constraint("Coincident", 7, 2, 8, 1))
sketch6.addConstraint(Sketcher.Constraint("Tangent", 8, 2, 9, 2))
sketch6.addConstraint(Sketcher.Constraint("Tangent", 9, 1, 10, 1))
sketch6.addConstraint(Sketcher.Constraint("Tangent", 10, 2, 11, 2))
sketch6.addConstraint(Sketcher.Constraint("Coincident", 11, 1, 12, 1))
sketch6.addConstraint(Sketcher.Constraint("Coincident", 12, 2, 13, 1))
sketch6.addConstraint(Sketcher.Constraint("Coincident", 13, 2, 0, 1))
sketch6.addConstraint(Sketcher.Constraint("Coincident", 16, 2, 17, 1))
sketch6.addConstraint(Sketcher.Constraint("Coincident", 17, 2, 18, 1))
sketch6.addConstraint(Sketcher.Constraint("Coincident", 18, 2, 19, 1))
sketch6.addConstraint(Sketcher.Constraint("Coincident", 19, 2, 20, 1))
sketch6.addConstraint(Sketcher.Constraint("Coincident", 20, 2, 21, 1))
sketch6.addConstraint(Sketcher.Constraint("Coincident", 21, 2, 16, 1))
sketch6.addConstraint(Sketcher.Constraint("Horizontal", 0))
sketch6.addConstraint(Sketcher.Constraint("Vertical", 1))
sketch6.addConstraint(Sketcher.Constraint("Horizontal", 2))
sketch6.addConstraint(Sketcher.Constraint("Horizontal", 7))
sketch6.addConstraint(Sketcher.Constraint("Horizontal", 10))
sketch6.addConstraint(Sketcher.Constraint("Horizontal", 12))
sketch6.addConstraint(Sketcher.Constraint("Vertical", 13))
sketch6.addConstraint(Sketcher.Constraint("Equal", 9, 11))
sketch6.addConstraint(Sketcher.Constraint("Equal", 14, 15))
sketch6.addConstraint(Sketcher.Constraint("Equal", 15, 22))
sketch6.addConstraint(Sketcher.Constraint("Equal", 22, 23))
sketch6.addConstraint(Sketcher.Constraint("Equal", 23, 24))
sketch6.addConstraint(Sketcher.Constraint("Equal", 24, 26))
sketch6.addConstraint(Sketcher.Constraint("Equal", 25, 27))
sketch6.addConstraint(Sketcher.Constraint("Equal", 27, 28))
sketch6.addConstraint(Sketcher.Constraint("Equal", 26, 29))
sketch6.addConstraint(Sketcher.Constraint("PointOnObject", 0, 2, -2))
sketch6.addConstraint(Sketcher.Constraint("Perpendicular", 3, 16))
sketch6.addConstraint(Sketcher.Constraint("Perpendicular", 16, 17))
sketch6.addConstraint(Sketcher.Constraint("Perpendicular", 17, 18))
sketch6.addConstraint(Sketcher.Constraint("Perpendicular", 18, 19))
sketch6.addConstraint(Sketcher.Constraint("Perpendicular", 19, 20))
sketch6.addConstraint(Sketcher.Constraint("Parallel", 20, 21))
sketch6.addConstraint(Sketcher.Constraint("Horizontal", 4, 3, 9, 3))
sketch6.addConstraint(Sketcher.Constraint("Horizontal", 14, 3, 15, 3))
sketch6.addConstraint(Sketcher.Constraint("Horizontal", 23, 3, 24, 3))
sketch6.addConstraint(Sketcher.Constraint("Horizontal", 22, 3, 26, 3))
sketch6.addConstraint(Sketcher.Constraint("Horizontal", 25, 3, 27, 3))
sketch6.addConstraint(Sketcher.Constraint("Horizontal", 27, 3, 28, 3))
sketch6.addConstraint(Sketcher.Constraint("Horizontal", 26, 3, 29, 3))
sketch6.addConstraint(Sketcher.Constraint("Vertical", 23, 3, 26, 3))
sketch6.addConstraint(Sketcher.Constraint("Vertical", 24, 3, 29, 3))
sketch6.addConstraint(Sketcher.Constraint("Equal", 16, 20))
sketch6.addConstraint(Sketcher.Constraint("Radius", 4, Q("16.999999 mm")))
sketch6.addConstraint(Sketcher.Constraint("Radius", 9, Q("15.999999 mm")))
sketch6.addConstraint(Sketcher.Constraint("Diameter", 14, Q("3.6 mm")))
sketch6.addConstraint(Sketcher.Constraint("Diameter", 25, Q("12.6 mm")))
sketch6.addConstraint(Sketcher.Constraint("DistanceY", 1, 1, 1, 2, Q("36 mm")))
sketch6.addConstraint(Sketcher.Constraint("DistanceY", 13, 2, 13, 1, Q("3 mm")))
sketch6.addConstraint(Sketcher.Constraint("Angle", 3, Q("-110 deg")))
sketch6.addConstraint(Sketcher.Constraint("Angle", 5, Q("-114.999999 deg")))
sketch6.addConstraint(Sketcher.Constraint("Angle", 8, Q("72 deg")))
sketch6.addConstraint(Sketcher.Constraint("Distance", 5, Q("55 mm")))
sketch6.addConstraint(Sketcher.Constraint("Distance", 17, Q("7 mm")))
sketch6.addConstraint(Sketcher.Constraint("Distance", 21, Q("4.000001 mm")))
sketch6.addConstraint(Sketcher.Constraint("DistanceX", 0, 1, 0, 2, Q("82.8 mm")))
sketch6.addConstraint(Sketcher.Constraint("DistanceY", -1, 1, 4, 3, Q("4.000001 mm")))
sketch6.addConstraint(Sketcher.Constraint("DistanceX", 25, 3, -1, 1, Q("65 mm")))
sketch6.addConstraint(Sketcher.Constraint("DistanceX", 27, 3, -1, 1, Q("42 mm")))
sketch6.addConstraint(Sketcher.Constraint("DistanceX", 28, 3, -1, 1, Q("19 mm")))
sketch6.addConstraint(Sketcher.Constraint("DistanceX", 11, 3, 24, 3, Q("102 mm")))
sketch6.addConstraint(Sketcher.Constraint("DistanceY", 0, 2, 28, 3, Q("18 mm")))
sketch6.addConstraint(Sketcher.Constraint("Distance", 16, Q("0.199999 mm")))
sketch6.addConstraint(Sketcher.Constraint("DistanceX", 11, 3, -1, 1, Q("107.6 mm")))
sketch6.addConstraint(Sketcher.Constraint("DistanceY", -1, 1, 22, 3, Q("34.8 mm")))
sketch6.addConstraint(Sketcher.Constraint("DistanceY", -1, 1, 23, 3, Q("7.6 mm")))
sketch6.addConstraint(Sketcher.Constraint("DistanceY", -1, 1, 25, 3, Q("21.2 mm")))
sketch6.addConstraint(Sketcher.Constraint("DistanceY", 6, 2, 14, 3, Q("3.6 mm")))
sketch6.addConstraint(Sketcher.Constraint("DistanceX", 23, 3, -1, 1, Q("78.51 mm")))
sketch6.addConstraint(Sketcher.Constraint("Radius", 6, Q("33.783311 mm")))
sketch6.addConstraint(Sketcher.Constraint("Distance", 3, Q("20.109801 mm")))
sketch6.addConstraint(Sketcher.Constraint("DistanceX", 2, 2, 2, 1, Q("195.886839 mm")))
sketch6.addConstraint(Sketcher.Constraint("DistanceX", 7, 1, 7, 2, Q("39.24671 mm")))
sketch6.addConstraint(Sketcher.Constraint("DistanceY", -1, 1, 21, 2, Q("31.635599 mm")))
sketch6.addConstraint(Sketcher.Constraint("DistanceX", 4, 3, 9, 3, Q("75.154401 mm")))
sketch6.addConstraint(Sketcher.Constraint("DistanceX", 3, 2, 16, 2, Q("12.826101 mm")))
sketch6.addConstraint(Sketcher.Constraint("DistanceX", 22, 3, -1, 1, Q("184.079668 mm")))
sketch6.addConstraint(Sketcher.Constraint("DistanceX", 14, 3, 4, 3, Q("5.860462 mm")))
sketch6.addConstraint(Sketcher.Constraint("DistanceX", 6, 3, 15, 3, Q("5.496839 mm")))
pad6 = body10.newObject("PartDesign::Pad", "Pad005")
pad6.Profile = sketch6
pad6.Length = 2
pad6.Reversed = True
doc.recompute()

boolean6 = body10.newObject("PartDesign::Boolean", "Boolean005")
boolean6.Type = "Cut"
boolean6.addObjects([body9])
doc.recompute()

boolean7 = body10.newObject("PartDesign::Boolean", "Boolean006")
boolean7.Type = "Fuse"
boolean7.addObjects([body8])
doc.recompute()

boolean8 = body10.newObject("PartDesign::Boolean", "Boolean007")
boolean8.Type = "Fuse"
boolean8.addObjects([body2])
doc.recompute()

boolean9 = body10.newObject("PartDesign::Boolean", "Boolean008")
boolean9.Type = "Fuse"
boolean9.addObjects([body4])

doc.recompute()
